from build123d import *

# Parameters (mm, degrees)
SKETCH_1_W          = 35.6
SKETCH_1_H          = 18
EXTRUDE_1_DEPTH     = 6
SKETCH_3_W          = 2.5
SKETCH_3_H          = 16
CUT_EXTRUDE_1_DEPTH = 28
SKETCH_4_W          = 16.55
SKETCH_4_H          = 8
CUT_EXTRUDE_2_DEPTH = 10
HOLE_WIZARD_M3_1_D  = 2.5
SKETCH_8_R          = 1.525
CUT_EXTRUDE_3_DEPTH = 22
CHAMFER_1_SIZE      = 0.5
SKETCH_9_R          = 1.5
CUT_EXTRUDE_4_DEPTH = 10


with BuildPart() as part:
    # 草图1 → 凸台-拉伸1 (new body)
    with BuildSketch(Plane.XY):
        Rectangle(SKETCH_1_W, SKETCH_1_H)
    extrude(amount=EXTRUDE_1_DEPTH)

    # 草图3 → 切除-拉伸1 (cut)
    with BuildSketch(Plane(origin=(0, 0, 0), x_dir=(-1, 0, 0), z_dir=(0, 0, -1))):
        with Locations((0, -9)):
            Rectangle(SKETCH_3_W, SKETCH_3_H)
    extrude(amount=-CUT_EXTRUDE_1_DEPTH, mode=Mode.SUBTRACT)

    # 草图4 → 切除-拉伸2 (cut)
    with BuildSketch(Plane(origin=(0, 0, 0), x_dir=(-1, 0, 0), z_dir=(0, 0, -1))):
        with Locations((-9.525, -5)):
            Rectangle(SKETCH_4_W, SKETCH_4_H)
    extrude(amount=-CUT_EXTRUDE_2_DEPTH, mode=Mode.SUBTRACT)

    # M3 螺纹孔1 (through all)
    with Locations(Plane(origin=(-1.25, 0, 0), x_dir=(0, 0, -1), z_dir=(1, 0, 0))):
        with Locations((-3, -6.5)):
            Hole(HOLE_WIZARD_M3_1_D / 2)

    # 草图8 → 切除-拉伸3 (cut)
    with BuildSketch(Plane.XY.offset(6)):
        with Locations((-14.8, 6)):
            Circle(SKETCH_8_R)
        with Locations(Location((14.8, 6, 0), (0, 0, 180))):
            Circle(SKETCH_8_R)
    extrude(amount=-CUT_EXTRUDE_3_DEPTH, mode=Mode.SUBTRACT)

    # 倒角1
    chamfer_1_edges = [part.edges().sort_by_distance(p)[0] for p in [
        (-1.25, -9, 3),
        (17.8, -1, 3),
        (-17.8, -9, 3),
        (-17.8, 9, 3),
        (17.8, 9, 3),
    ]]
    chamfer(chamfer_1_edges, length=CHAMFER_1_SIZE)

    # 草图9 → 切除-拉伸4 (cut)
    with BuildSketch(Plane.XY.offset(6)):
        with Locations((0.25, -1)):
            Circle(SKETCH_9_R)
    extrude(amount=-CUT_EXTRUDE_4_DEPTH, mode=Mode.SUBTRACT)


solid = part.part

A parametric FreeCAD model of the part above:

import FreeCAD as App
import Part
import Sketcher
from FreeCAD import Vector
Q = App.Units.Quantity


def edges_at(feature, points):
    """Names of the edges that pass closest to the given points."""
    edges = feature.Shape.Edges
    near = lambda p: min(range(len(edges)), key=lambda i: edges[i].distToShape(Part.Vertex(*p))[0])
    return sorted({f"Edge{near(p) + 1}" for p in points})

doc = App.newDocument("Part")
body = doc.addObject("PartDesign::Body", "Body")

# Sketch on XY plane
sketch1 = body.newObject("Sketcher::SketchObject", "Sketch")
sketch1.AttachmentSupport = (doc.getObject("XY_Plane"), [""])
sketch1.MapMode = "FlatFace"
sketch1.addGeometry(Part.LineSegment(Vector(-18, 9, 0), Vector(-18, -9, 0)), False)
sketch1.addGeometry(Part.LineSegment(Vector(-18, -9, 0), Vector(18, -9, 0)), False)
sketch1.addGeometry(Part.LineSegment(Vector(18, -9, 0), Vector(18, 9, 0)), False)
sketch1.addGeometry(Part.LineSegment(Vector(18, 9, 0), Vector(-18, 9, 0)), False)
sketch1.addConstraint(Sketcher.Constraint("Coincident", 0, 2, 1, 1))
sketch1.addConstraint(Sketcher.Constraint("Coincident", 1, 2, 2, 1))
sketch1.addConstraint(Sketcher.Constraint("Coincident", 2, 2, 3, 1))
sketch1.addConstraint(Sketcher.Constraint("Coincident", 3, 2, 0, 1))
sketch1.addConstraint(Sketcher.Constraint("Vertical", 0))
sketch1.addConstraint(Sketcher.Constraint("Horizontal", 1))
sketch1.addConstraint(Sketcher.Constraint("Vertical", 2))
sketch1.addConstraint(Sketcher.Constraint("Horizontal", 3))
sketch1.addConstraint(Sketcher.Constraint("Symmetric", 0, 2, 2, 2, -1, 1))
sketch1.addConstraint(Sketcher.Constraint("DistanceY", 0, 2, 0, 1, Q("18 mm")))
sketch1.addConstraint(Sketcher.Constraint("DistanceX", 1, 1, 1, 2, Q("35.6 mm")))
pad1 = body.newObject("PartDesign::Pad", "Pad")
pad1.Profile = sketch1
pad1.Length = 6

# Sketch on XY plane
sketch2 = body.newObject("Sketcher::SketchObject", "Sketch001")
sketch2.AttachmentSupport = (doc.getObject("XY_Plane"), [""])
sketch2.MapMode = "FlatFace"
sketch2.addGeometry(Part.LineSegment(Vector(1.2, -1, 0), Vector(1.2, -17, 0)), False)
sketch2.addGeometry(Part.LineSegment(Vector(1.2, -17, 0), Vector(-1.2, -17, 0)), False)
sketch2.addGeometry(Part.LineSegment(Vector(-1.2, -17, 0), Vector(-1.2, -1, 0)), False)
sketch2.addGeometry(Part.LineSegment(Vector(-1.2, -1, 0), Vector(1.2, -1, 0)), False)
sketch2.addConstraint(Sketcher.Constraint("Coincident", 0, 2, 1, 1))
sketch2.addConstraint(Sketcher.Constraint("Coincident", 1, 2, 2, 1))
sketch2.addConstraint(Sketcher.Constraint("Coincident", 2, 2, 3, 1))
sketch2.addConstraint(Sketcher.Constraint("Coincident", 3, 2, 0, 1))
sketch2.addConstraint(Sketcher.Constraint("Vertical", 0))
sketch2.addConstraint(Sketcher.Constraint("Horizontal", 1))
sketch2.addConstraint(Sketcher.Constraint("Vertical", 2))
sketch2.addConstraint(Sketcher.Constraint("Horizontal", 3))
sketch2.addConstraint(Sketcher.Constraint("DistanceY", 0, 2, 0, 1, Q("16 mm")))
sketch2.addConstraint(Sketcher.Constraint("DistanceX", 1, 2, 1, 1, Q("2.5 mm")))
sketch2.addConstraint(Sketcher.Constraint("DistanceY", 0, 2, -1, 1, Q("17 mm")))
sketch2.addConstraint(Sketcher.Constraint("DistanceX", -1, 1, 0, 2, Q("1.25 mm")))
pocket1 = body.newObject("PartDesign::Pocket", "Pocket")
pocket1.Profile = sketch2
pocket1.Length = 28
pocket1.Reversed = True

# Sketch on XY plane
sketch3 = body.newObject("Sketcher::SketchObject", "Sketch002")
sketch3.AttachmentSupport = (doc.getObject("XY_Plane"), [""])
sketch3.MapMode = "FlatFace"
sketch3.addGeometry(Part.LineSegment(Vector(18, -1, 0), Vector(18, -9, 0)), False)
sketch3.addGeometry(Part.LineSegment(Vector(18, -9, 0), Vector(1, -9, 0)), False)
sketch3.addGeometry(Part.LineSegment(Vector(1, -9, 0), Vector(1, -1, 0)), False)
sketch3.addGeometry(Part.LineSegment(Vector(1, -1, 0), Vector(18, -1, 0)), False)
sketch3.addConstraint(Sketcher.Constraint("Coincident", 0, 2, 1, 1))
sketch3.addConstraint(Sketcher.Constraint("Coincident", 1, 2, 2, 1))
sketch3.addConstraint(Sketcher.Constraint("Coincident", 2, 2, 3, 1))
sketch3.addConstraint(Sketcher.Constraint("Coincident", 3, 2, 0, 1))
sketch3.addConstraint(Sketcher.Constraint("Vertical", 0))
sketch3.addConstraint(Sketcher.Constraint("Horizontal", 1))
sketch3.addConstraint(Sketcher.Constraint("Vertical", 2))
sketch3.addConstraint(Sketcher.Constraint("Horizontal", 3))
sketch3.addConstraint(Sketcher.Constraint("DistanceY", 0, 2, 0, 1, Q("8 mm")))
sketch3.addConstraint(Sketcher.Constraint("DistanceY", 0, 2, -1, 1, Q("9 mm")))
sketch3.addConstraint(Sketcher.Constraint("DistanceX", 1, 2, 1, 1, Q("16.55 mm")))
sketch3.addConstraint(Sketcher.Constraint("DistanceX", -1, 1, 0, 2, Q("17.8 mm")))
pocket2 = body.newObject("PartDesign::Pocket", "Pocket001")
pocket2.Profile = sketch3
pocket2.Length = 10
pocket2.Reversed = True

# Sketch on YZ plane
sketch4 = body.newObject("Sketcher::SketchObject", "Sketch003")
sketch4.AttachmentSupport = (doc.getObject("YZ_Plane"), [""])
sketch4.MapMode = "FlatFace"
sketch4.AttachmentOffset = App.Placement(Vector(0, 0, -1.25), App.Rotation())
sketch4.addGeometry(Part.Circle(Vector(-6.5, 3, 0), Vector(0, 0, 1), 1.2), False)
sketch4.addConstraint(Sketcher.Constraint("Diameter", 0, Q("2.5 mm")))
sketch4.addConstraint(Sketcher.Constraint("DistanceY", -1, 1, 0, 3, Q("3 mm")))
sketch4.addConstraint(Sketcher.Constraint("DistanceX", 0, 3, -1, 1, Q("6.5 mm")))
doc.recompute()
hole = body.newObject("PartDesign::Hole", "Hole")
hole.Profile = sketch4
hole.ThreadType = "None"
hole.Diameter = 2.5
hole.DepthType = "ThroughAll"

# Sketch on XY plane
sketch5 = body.newObject("Sketcher::SketchObject", "Sketch004")
sketch5.AttachmentSupport = (doc.getObject("XY_Plane"), [""])
sketch5.MapMode = "FlatFace"
sketch5.AttachmentOffset = App.Placement(Vector(0, 0, 6), App.Rotation())
sketch5.addGeometry(Part.Circle(Vector(-14.8, 6, 0), Vector(0, 0, 1), 1.5), False)
sketch5.addGeometry(Part.Circle(Vector(14.8, 6, 0), Vector(0, 0, 1), 1.5), False)
sketch5.addConstraint(Sketcher.Constraint("Equal", 0, 1))
sketch5.addConstraint(Sketcher.Constraint("Symmetric", 0, 3, 1, 3, -2))
sketch5.addConstraint(Sketcher.Constraint("Diameter", 0, Q("3.05 mm")))
sketch5.addConstraint(Sketcher.Constraint("DistanceY", -1, 1, 0, 3, Q("6 mm")))
sketch5.addConstraint(Sketcher.Constraint("DistanceX", 0, 3, -1, 1, Q("14.8 mm")))
pocket3 = body.newObject("PartDesign::Pocket", "Pocket002")
pocket3.Profile = sketch5
pocket3.Length = 22
doc.recompute()

chamfer = body.newObject("PartDesign::Chamfer", "Chamfer")
chamfer.Base = (pocket3, edges_at(pocket3, [
    (-1.25, -9, 3),
    (17.8, -1, 3),
    (-17.8, -9, 3),
    (-17.8, 9, 3),
    (17.8, 9, 3),
]))
chamfer.Size = 0.5

# Sketch on XY plane
sketch6 = body.newObject("Sketcher::SketchObject", "Sketch005")
sketch6.AttachmentSupport = (doc.getObject("XY_Plane"), [""])
sketch6.MapMode = "FlatFace"
sketch6.AttachmentOffset = App.Placement(Vector(0, 0, 6), App.Rotation())
sketch6.addGeometry(Part.Circle(Vector(0.2, -1, 0), Vector(0, 0, 1), 1.5), False)
sketch6.addConstraint(Sketcher.Constraint("Diameter", 0, Q("3 mm")))
sketch6.addConstraint(Sketcher.Constraint("DistanceY", 0, 3, -1, 1, Q("1 mm")))
sketch6.addConstraint(Sketcher.Constraint("DistanceX", -1, 1, 0, 3, Q("0.25 mm")))
pocket4 = body.newObject("PartDesign::Pocket", "Pocket003")
pocket4.Profile = sketch6
pocket4.Length = 10

doc.recompute()
